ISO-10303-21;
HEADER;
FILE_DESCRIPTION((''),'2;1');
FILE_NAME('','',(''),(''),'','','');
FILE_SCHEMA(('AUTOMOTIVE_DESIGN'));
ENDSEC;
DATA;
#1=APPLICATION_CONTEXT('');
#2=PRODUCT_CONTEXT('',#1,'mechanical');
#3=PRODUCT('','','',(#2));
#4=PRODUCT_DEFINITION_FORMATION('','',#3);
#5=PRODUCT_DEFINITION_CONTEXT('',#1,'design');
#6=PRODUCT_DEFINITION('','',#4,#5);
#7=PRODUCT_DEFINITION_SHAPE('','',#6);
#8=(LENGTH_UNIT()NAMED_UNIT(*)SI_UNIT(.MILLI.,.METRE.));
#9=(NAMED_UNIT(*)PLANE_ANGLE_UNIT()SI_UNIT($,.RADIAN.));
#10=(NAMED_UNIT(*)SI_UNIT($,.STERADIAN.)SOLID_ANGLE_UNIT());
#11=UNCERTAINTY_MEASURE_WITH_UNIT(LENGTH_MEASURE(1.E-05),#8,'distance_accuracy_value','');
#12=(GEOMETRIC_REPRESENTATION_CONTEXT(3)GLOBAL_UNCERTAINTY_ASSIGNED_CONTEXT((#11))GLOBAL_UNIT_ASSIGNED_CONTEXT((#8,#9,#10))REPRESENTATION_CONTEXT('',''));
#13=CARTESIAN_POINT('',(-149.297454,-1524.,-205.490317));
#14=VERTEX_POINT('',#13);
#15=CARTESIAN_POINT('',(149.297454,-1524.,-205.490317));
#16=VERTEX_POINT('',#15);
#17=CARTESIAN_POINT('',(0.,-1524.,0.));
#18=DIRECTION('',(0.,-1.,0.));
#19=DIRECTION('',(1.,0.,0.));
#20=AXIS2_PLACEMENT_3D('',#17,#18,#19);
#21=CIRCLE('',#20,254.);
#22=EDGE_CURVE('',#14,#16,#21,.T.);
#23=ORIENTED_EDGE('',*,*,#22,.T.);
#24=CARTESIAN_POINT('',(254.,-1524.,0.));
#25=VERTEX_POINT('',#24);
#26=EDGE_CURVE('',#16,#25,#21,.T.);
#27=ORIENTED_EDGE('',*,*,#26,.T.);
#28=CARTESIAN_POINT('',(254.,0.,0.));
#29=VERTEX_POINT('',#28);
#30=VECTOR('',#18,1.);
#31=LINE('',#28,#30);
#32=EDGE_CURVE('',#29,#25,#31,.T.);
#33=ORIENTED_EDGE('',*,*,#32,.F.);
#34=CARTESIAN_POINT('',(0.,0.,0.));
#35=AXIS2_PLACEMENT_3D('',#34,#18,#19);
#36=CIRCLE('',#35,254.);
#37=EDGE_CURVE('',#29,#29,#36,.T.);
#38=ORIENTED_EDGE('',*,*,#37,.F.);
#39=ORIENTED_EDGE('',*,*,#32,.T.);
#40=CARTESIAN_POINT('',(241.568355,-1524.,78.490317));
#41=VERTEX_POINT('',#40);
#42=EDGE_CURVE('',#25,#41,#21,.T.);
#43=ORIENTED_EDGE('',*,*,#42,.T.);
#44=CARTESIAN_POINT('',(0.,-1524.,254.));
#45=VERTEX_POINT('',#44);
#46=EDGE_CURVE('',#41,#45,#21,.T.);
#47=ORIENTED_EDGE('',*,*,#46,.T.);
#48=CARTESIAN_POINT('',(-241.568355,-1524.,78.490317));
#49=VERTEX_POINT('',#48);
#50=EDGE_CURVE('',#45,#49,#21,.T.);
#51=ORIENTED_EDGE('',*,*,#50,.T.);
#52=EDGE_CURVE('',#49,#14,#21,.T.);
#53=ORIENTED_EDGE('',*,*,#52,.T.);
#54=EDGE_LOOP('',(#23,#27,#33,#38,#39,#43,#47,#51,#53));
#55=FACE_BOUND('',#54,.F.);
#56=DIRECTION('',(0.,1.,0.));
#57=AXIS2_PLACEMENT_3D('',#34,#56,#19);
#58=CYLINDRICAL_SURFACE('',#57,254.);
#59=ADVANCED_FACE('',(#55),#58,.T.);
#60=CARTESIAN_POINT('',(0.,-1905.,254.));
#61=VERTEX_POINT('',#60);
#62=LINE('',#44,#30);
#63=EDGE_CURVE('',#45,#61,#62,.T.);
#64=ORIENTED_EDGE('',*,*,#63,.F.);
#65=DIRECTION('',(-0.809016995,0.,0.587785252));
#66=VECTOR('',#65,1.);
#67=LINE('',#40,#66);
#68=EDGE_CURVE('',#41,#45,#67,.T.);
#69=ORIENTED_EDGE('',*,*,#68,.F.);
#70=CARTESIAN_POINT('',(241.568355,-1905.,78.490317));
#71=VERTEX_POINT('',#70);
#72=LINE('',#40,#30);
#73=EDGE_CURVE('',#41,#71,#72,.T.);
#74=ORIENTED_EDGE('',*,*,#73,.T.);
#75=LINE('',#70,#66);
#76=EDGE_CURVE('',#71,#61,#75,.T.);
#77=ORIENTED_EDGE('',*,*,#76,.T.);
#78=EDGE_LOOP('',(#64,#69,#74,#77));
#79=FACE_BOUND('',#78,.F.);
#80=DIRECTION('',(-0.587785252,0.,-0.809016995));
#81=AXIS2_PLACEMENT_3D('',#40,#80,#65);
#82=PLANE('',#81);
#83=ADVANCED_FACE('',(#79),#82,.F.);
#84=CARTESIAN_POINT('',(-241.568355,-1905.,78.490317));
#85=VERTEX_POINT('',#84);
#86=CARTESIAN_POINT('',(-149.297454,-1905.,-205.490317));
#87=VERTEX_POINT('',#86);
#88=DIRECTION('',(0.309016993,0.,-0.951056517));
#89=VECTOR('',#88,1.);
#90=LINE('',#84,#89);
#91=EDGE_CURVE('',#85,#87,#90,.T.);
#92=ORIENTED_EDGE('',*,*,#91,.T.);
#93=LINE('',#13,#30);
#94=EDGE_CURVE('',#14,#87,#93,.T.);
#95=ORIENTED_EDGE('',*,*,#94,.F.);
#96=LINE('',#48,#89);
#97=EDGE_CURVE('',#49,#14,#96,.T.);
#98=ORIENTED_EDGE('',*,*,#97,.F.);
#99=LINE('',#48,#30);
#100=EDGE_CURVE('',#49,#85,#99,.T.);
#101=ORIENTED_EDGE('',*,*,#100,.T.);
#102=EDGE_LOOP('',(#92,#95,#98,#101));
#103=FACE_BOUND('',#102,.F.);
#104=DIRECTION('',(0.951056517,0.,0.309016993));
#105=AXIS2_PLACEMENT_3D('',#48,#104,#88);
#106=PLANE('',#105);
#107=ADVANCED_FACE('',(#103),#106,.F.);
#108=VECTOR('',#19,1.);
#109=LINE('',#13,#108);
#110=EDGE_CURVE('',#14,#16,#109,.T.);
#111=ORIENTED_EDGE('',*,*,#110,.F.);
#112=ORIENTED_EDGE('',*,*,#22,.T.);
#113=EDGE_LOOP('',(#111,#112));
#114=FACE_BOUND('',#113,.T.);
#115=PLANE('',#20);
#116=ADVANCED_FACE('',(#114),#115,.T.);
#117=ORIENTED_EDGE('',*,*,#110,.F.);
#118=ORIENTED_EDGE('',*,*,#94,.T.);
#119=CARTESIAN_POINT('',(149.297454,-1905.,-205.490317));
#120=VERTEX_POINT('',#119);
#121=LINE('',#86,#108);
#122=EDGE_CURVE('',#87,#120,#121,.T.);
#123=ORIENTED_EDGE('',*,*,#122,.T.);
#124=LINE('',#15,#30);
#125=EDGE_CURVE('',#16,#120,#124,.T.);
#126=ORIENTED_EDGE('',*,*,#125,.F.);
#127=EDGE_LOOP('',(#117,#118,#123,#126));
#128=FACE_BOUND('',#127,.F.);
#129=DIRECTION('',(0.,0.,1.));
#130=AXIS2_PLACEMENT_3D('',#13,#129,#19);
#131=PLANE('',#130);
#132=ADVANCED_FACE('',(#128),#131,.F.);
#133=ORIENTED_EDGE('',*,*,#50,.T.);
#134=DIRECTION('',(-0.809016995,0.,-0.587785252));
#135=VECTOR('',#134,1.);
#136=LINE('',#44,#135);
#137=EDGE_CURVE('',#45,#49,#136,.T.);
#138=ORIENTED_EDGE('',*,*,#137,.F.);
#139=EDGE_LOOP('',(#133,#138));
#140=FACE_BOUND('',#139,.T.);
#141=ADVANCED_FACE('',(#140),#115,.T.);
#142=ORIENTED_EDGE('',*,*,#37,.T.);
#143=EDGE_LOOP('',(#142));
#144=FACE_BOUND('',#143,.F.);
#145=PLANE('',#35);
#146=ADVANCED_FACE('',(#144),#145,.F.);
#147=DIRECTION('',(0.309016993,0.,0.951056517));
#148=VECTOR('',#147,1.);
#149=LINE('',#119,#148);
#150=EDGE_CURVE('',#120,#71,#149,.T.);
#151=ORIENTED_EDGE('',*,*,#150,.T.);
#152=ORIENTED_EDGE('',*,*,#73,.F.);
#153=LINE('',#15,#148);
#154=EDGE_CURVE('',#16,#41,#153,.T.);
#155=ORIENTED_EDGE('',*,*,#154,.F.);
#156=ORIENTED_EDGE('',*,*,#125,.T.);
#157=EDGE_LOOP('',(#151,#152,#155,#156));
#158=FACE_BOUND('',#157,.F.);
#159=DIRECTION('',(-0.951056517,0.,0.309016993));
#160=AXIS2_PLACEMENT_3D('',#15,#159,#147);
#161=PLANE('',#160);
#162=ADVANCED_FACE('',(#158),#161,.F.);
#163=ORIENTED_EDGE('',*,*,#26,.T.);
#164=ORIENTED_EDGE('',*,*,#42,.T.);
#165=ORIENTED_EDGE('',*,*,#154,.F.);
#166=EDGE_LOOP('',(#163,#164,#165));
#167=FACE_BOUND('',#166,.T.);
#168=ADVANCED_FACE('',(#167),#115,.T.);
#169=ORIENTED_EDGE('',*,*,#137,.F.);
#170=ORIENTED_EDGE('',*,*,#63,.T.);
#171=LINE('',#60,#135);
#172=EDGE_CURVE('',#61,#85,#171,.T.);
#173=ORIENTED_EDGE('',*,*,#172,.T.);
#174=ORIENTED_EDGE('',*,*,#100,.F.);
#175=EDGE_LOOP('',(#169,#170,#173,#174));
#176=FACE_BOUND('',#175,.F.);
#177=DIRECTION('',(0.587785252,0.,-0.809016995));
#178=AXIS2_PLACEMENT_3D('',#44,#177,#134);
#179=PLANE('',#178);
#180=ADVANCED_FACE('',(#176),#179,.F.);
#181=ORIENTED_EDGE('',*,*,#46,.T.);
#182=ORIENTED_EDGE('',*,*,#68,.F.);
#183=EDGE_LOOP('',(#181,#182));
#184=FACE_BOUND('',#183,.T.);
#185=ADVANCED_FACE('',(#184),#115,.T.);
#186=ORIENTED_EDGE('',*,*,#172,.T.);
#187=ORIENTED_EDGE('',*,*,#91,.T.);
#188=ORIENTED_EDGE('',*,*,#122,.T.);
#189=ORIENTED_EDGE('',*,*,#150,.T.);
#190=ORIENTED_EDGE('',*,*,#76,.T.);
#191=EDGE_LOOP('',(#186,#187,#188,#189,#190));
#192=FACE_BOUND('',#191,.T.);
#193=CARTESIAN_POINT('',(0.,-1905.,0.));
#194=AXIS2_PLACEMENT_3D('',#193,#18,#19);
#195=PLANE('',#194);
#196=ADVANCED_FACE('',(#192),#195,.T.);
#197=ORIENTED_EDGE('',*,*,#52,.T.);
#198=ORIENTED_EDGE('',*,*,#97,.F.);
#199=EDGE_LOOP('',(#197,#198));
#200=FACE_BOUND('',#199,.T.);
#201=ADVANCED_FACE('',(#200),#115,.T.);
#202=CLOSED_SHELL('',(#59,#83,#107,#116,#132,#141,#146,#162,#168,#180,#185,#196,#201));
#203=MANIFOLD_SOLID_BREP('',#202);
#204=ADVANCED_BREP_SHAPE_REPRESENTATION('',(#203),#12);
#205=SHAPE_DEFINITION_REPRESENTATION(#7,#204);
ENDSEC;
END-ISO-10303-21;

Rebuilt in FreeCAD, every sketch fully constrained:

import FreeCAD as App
import Part
import Sketcher
Q = App.Units.Quantity


def add_polygon(sketch, points):
    """Adds a closed chain of lines whose ends are joined by coincident constraints."""
    first, n = sketch.GeometryCount, len(points)
    for a, b in zip(points, points[1:] + points[:1]):
        sketch.addGeometry(Part.LineSegment(App.Vector(*a, 0), App.Vector(*b, 0)), False)
    for i in range(n):
        sketch.addConstraint(Sketcher.Constraint("Coincident", first + i, 2, first + (i + 1) % n, 1))

doc = App.newDocument("Part")
params = doc.addObject("Spreadsheet::Sheet", "Params")
for row, (alias, value) in enumerate([
    ("sketch1_diameter", "20 in"),
    ("pad1_length", "60 in"),
    ("pad2_length", "15 in"),
], start=1):
    params.set(f"A{row}", alias)
    params.set(f"B{row}", "=" + value)
    params.setAlias(f"B{row}", alias)

body = doc.addObject("PartDesign::Body", "Body")

# Sketch on XZ plane
sketch1 = body.newObject("Sketcher::SketchObject", "Sketch")
sketch1.AttachmentSupport = (doc.getObject("XZ_Plane"), [""])
sketch1.MapMode = "FlatFace"
sketch1.addGeometry(Part.Circle(App.Vector(0, 0, 0), App.Vector(0, 0, 1), 254), False)
sketch1.addConstraint([
    Sketcher.Constraint("Coincident", 0, 3, -1, 1),
    Sketcher.Constraint("Diameter", 0, Q("20 in")),
])
sketch1.setExpression("Constraints[1]", "Params.sketch1_diameter")
pad1 = body.newObject("PartDesign::Pad", "Pad")
pad1.Profile = sketch1
pad1.setExpression("Length", "Params.pad1_length")

# Sketch on XZ plane
sketch2 = body.newObject("Sketcher::SketchObject", "Sketch001")
sketch2.AttachmentSupport = (doc.getObject("XZ_Plane"), [""])
sketch2.MapMode = "FlatFace"
sketch2.AttachmentOffset = App.Placement(App.Vector(0, 0, 60 * 25.4), App.Rotation())
add_polygon(sketch2, [(242, 78), (0, 254), (-242, 78), (-149, -205), (149, -205)])  # lines 0-4
sketch2.addConstraint([
    Sketcher.Constraint("Horizontal", 3),
    Sketcher.Constraint("Symmetric", 1, 2, 4, 2, -2),
    Sketcher.Constraint("PointOnObject", 0, 2, -2),
    Sketcher.Constraint("Equal", 1, 2),
    Sketcher.Constraint("Equal", 2, 4),
    Sketcher.Constraint("DistanceY", -1, 1, 0, 2, Q("10 in")),
    Sketcher.Constraint("Angle", 0, Q("144 deg")),
    Sketcher.Constraint("Angle", 2, Q("-72 deg")),
    Sketcher.Constraint("DistanceX", 1, 2, 2, 2, Q("92.270901 mm")),
])
pad2 = body.newObject("PartDesign::Pad", "Pad001")
pad2.Profile = sketch2
pad2.setExpression("Length", "Params.pad2_length")

doc.recompute()
